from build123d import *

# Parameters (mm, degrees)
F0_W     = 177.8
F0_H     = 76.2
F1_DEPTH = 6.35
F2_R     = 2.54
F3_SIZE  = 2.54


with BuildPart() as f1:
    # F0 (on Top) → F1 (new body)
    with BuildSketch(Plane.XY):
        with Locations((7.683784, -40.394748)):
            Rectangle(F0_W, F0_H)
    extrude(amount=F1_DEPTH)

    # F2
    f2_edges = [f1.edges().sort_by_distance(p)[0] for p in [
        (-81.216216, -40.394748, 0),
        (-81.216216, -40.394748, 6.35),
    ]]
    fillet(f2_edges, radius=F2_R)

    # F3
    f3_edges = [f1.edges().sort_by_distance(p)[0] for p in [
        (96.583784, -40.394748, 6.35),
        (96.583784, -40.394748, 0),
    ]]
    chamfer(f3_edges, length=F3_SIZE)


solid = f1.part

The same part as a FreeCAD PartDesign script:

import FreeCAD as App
import Part
import Sketcher
Q = App.Units.Quantity


def edges_at(feature, points):
    """Names of the edges that pass closest to the given points."""
    edges = feature.Shape.Edges
    near = lambda p: min(range(len(edges)), key=lambda i: edges[i].distToShape(Part.Vertex(*p))[0])
    return sorted({f"Edge{near(p) + 1}" for p in points})

doc = App.newDocument("Part")
body = doc.addObject("PartDesign::Body", "Body")

# Sketch on XY plane
sketch1 = body.newObject("Sketcher::SketchObject", "Sketch")
sketch1.AttachmentSupport = (doc.getObject("XY_Plane"), [""])
sketch1.MapMode = "FlatFace"
sketch1.addGeometry([
    Part.LineSegment(App.Vector(-81.216216, -2.294748, 0), App.Vector(-81.216216, -78.494748, 0)),
    Part.LineSegment(App.Vector(-81.216216, -78.494748, 0), App.Vector(96.583784, -78.494748, 0)),
    Part.LineSegment(App.Vector(96.583784, -78.494748, 0), App.Vector(96.583784, -2.294748, 0)),
    Part.LineSegment(App.Vector(96.583784, -2.294748, 0), App.Vector(-81.216216, -2.294748, 0)),
], False)
sketch1.addConstraint([
    Sketcher.Constraint("Coincident", 0, 2, 1, 1),
    Sketcher.Constraint("Coincident", 1, 2, 2, 1),
    Sketcher.Constraint("Coincident", 2, 2, 3, 1),
    Sketcher.Constraint("Coincident", 3, 2, 0, 1),
    Sketcher.Constraint("Vertical", 0),
    Sketcher.Constraint("Horizontal", 1),
    Sketcher.Constraint("Vertical", 2),
    Sketcher.Constraint("Horizontal", 3),
    Sketcher.Constraint("DistanceX", 1, 1, 1, 2, Q("7 in")),
    Sketcher.Constraint("DistanceY", 0, 2, 0, 1, Q("3 in")),
    Sketcher.Constraint("DistanceY", 0, 2, -1, 1, Q("78.494748 mm")),
    Sketcher.Constraint("DistanceX", 0, 2, -1, 1, Q("81.216216 mm")),
])
pad1 = body.newObject("PartDesign::Pad", "Pad")
pad1.Profile = sketch1
pad1.Length = Q("0.25 in")
doc.recompute()

fillet = body.newObject("PartDesign::Fillet", "Fillet")
fillet.Base = (pad1, edges_at(pad1, [(-81.216, -40.395, 0), (-81.216, -40.395, 6.35)]))
fillet.Radius = Q("0.1 in")
doc.recompute()

chamfer = body.newObject("PartDesign::Chamfer", "Chamfer")
chamfer.Base = (fillet, edges_at(fillet, [(96.584, -40.395, 6.35), (96.584, -40.395, 0)]))
chamfer.Size = Q("0.1 in")

doc.recompute()
